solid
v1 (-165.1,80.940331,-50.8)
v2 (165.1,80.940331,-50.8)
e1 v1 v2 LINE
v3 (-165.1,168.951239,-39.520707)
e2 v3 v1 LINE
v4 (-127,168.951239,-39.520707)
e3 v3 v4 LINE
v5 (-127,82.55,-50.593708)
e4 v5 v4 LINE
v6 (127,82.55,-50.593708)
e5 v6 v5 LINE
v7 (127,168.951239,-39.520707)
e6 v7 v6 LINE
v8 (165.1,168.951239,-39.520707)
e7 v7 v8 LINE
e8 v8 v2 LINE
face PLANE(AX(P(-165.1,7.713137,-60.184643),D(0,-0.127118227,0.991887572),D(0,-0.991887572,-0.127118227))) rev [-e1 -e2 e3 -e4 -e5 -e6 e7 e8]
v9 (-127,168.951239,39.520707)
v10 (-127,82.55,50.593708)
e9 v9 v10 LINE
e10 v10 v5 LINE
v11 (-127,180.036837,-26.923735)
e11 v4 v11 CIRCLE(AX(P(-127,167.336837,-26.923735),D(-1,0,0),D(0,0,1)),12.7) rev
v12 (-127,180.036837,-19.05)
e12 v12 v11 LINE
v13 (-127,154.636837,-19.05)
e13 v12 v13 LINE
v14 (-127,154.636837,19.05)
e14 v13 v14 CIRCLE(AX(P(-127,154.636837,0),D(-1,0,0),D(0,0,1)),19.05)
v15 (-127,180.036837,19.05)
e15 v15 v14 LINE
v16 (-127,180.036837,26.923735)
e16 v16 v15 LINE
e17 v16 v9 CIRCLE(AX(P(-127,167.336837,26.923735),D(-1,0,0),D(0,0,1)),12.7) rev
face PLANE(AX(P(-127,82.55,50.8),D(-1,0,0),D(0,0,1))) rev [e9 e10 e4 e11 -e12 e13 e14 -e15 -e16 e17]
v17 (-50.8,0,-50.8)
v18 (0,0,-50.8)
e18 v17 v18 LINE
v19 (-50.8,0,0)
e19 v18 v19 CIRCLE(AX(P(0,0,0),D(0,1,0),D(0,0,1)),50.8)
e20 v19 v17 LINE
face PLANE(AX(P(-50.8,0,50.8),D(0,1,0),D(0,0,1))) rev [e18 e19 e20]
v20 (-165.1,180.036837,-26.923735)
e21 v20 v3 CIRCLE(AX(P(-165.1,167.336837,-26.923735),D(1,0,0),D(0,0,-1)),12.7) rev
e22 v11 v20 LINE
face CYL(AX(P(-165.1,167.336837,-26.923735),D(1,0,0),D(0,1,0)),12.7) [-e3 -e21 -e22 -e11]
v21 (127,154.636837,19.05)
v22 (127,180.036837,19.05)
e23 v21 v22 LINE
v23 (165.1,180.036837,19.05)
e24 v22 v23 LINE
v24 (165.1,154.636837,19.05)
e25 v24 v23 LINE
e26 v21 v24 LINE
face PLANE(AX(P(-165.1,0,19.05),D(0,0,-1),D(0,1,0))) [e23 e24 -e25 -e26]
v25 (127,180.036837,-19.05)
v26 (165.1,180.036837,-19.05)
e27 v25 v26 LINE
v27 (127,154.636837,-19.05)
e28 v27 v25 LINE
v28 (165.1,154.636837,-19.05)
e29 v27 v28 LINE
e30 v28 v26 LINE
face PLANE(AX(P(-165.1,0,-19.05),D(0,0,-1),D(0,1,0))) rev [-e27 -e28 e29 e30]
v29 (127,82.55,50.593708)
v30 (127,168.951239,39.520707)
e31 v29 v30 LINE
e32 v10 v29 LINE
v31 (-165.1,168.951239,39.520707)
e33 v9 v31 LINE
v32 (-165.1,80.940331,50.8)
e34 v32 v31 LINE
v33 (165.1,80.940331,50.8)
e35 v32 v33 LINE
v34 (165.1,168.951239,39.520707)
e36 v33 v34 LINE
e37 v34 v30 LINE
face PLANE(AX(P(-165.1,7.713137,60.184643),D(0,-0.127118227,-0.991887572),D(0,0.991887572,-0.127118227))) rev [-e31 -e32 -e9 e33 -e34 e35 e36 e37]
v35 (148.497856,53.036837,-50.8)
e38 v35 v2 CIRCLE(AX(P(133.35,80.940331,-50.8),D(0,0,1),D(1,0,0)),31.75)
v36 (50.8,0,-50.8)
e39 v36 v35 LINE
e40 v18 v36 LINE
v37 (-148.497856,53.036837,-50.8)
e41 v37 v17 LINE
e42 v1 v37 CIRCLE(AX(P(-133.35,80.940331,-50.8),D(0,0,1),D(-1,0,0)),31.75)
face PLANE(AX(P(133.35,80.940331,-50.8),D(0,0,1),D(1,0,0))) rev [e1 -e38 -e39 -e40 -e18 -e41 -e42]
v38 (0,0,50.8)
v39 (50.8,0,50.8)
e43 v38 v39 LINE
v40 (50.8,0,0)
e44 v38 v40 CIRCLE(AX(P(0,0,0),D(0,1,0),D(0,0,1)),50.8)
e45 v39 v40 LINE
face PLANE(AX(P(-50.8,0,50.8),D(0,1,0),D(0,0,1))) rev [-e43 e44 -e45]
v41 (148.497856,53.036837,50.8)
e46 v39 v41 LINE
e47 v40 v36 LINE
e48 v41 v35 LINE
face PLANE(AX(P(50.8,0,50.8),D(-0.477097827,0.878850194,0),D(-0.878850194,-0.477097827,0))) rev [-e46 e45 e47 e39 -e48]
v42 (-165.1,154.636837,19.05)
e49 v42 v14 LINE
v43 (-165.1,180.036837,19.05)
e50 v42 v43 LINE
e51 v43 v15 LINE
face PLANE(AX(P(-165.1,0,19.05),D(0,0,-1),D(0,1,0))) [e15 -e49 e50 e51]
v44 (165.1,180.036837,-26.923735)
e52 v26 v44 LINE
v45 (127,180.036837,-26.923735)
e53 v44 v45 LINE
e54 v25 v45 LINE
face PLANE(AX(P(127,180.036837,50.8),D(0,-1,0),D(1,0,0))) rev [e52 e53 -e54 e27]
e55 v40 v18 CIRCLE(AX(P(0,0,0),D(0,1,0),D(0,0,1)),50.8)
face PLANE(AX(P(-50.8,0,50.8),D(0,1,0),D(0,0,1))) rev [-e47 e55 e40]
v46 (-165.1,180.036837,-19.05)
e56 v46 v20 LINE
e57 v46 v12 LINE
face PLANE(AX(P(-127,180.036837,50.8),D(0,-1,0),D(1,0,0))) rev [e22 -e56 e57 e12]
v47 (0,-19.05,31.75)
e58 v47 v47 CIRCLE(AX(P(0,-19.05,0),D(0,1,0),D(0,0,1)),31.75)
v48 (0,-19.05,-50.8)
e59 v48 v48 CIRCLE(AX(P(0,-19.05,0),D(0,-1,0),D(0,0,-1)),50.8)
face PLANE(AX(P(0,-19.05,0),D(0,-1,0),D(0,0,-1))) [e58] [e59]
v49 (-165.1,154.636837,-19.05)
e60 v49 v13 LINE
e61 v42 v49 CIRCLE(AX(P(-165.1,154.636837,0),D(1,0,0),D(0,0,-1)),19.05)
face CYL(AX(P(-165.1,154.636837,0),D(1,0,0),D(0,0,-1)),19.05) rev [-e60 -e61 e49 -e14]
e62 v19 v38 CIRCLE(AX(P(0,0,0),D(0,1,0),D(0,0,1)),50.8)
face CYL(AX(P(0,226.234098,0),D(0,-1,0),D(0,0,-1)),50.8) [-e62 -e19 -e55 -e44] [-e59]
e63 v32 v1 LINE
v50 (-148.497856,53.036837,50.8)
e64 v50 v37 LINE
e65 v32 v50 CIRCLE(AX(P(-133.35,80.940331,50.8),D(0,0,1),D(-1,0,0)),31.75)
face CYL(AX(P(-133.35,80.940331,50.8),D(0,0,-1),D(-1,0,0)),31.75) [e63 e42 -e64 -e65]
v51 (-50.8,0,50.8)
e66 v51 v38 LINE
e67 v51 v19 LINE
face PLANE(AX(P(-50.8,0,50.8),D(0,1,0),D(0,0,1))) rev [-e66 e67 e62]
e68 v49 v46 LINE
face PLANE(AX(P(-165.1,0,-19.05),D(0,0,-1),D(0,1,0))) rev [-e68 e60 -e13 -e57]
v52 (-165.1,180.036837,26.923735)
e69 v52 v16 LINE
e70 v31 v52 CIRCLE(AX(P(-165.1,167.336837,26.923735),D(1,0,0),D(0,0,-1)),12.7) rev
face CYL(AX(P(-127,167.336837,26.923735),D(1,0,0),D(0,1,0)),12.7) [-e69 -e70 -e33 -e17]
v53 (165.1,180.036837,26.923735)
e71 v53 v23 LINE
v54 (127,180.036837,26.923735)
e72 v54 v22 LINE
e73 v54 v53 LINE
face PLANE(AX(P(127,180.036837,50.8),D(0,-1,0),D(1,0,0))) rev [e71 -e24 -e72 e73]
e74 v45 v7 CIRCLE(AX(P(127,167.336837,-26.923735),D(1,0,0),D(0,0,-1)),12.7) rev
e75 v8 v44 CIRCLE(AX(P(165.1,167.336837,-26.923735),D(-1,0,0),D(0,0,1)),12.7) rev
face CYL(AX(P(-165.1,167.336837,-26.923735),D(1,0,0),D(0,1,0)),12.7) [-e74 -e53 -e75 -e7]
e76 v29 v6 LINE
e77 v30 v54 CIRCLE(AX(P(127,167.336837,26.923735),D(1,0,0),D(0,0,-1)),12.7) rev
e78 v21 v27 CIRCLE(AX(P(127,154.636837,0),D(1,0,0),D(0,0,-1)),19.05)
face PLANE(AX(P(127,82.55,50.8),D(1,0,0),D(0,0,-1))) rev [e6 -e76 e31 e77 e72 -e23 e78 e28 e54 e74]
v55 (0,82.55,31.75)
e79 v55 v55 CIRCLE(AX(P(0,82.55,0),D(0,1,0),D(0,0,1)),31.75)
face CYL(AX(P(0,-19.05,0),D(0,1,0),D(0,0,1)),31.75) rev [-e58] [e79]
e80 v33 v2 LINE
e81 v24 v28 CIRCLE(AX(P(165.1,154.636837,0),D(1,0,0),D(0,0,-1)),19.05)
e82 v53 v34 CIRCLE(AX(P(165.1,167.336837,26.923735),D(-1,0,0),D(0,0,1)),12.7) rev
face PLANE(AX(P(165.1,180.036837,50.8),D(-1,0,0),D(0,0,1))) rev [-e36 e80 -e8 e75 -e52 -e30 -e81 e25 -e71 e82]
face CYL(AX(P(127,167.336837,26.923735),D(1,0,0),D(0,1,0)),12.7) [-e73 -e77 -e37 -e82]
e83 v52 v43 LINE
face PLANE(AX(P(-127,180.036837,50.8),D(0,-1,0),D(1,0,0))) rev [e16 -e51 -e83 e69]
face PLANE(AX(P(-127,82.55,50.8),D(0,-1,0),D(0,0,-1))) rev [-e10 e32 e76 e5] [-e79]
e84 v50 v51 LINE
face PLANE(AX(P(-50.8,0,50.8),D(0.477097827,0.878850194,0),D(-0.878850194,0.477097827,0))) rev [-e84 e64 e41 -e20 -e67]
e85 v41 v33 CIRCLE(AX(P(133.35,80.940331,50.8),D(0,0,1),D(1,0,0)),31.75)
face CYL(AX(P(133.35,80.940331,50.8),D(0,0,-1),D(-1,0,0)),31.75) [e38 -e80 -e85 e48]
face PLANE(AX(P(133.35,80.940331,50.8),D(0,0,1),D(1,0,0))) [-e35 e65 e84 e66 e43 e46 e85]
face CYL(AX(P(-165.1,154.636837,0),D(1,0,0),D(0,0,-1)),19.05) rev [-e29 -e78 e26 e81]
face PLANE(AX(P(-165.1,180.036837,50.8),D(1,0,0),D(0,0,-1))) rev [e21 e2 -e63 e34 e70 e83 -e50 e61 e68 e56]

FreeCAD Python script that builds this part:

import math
import FreeCAD as App
import Part
import Sketcher
Q = App.Units.Quantity


def edges_at(feature, points):
    """Names of the edges that pass closest to the given points."""
    edges = feature.Shape.Edges
    near = lambda p: min(range(len(edges)), key=lambda i: edges[i].distToShape(Part.Vertex(*p))[0])
    return sorted({f"Edge{near(p) + 1}" for p in points})

doc = App.newDocument("Part")
params = doc.addObject("Spreadsheet::Sheet", "Params")
for row, (alias, value) in enumerate([
    ("sketch1_width", "4 in"),
    ("sketch1_width2", "10 in"),
    ("sketch1_radius", "1.25 in"),
    ("sketch1_width3", "1.5 in"),
    ("pad1_length", "4 in"),
    ("sketch2_diameter", "4 in"),
    ("pad2_length", "0.75 in"),
    ("sketch3_diameter", "2.5 in"),
    ("sketch4_width", "1 in"),
    ("sketch4_radius", "0.75 in"),
    ("sketch4_height", "0.5 in"),
    ("fillet_radius", "0.5 in"),
], start=1):
    params.set(f"A{row}", alias)
    params.set(f"B{row}", "=" + value)
    params.setAlias(f"B{row}", alias)

body = doc.addObject("PartDesign::Body", "Body")

# Sketch on XY plane
sketch1 = body.newObject("Sketcher::SketchObject", "Sketch")
sketch1.AttachmentSupport = (doc.getObject("XY_Plane"), [""])
sketch1.MapMode = "FlatFace"
sketch1.addGeometry(Part.LineSegment(App.Vector(-51, 0, 0), App.Vector(51, 0, 0)), False)
sketch1.addGeometry(Part.LineSegment(App.Vector(51, 0, 0), App.Vector(148, 53, 0)), False)
sketch1.addGeometry(Part.ArcOfCircle(Part.Circle(App.Vector(133, 81, 0), App.Vector(0, 0, 1), 32), math.radians(-62), math.radians(0)), False)
sketch1.addGeometry(Part.LineSegment(App.Vector(165, 81, 0), App.Vector(165, 180, 0)), False)
sketch1.addGeometry(Part.LineSegment(App.Vector(165, 180, 0), App.Vector(127, 180, 0)), False)
sketch1.addGeometry(Part.LineSegment(App.Vector(127, 180, 0), App.Vector(127, 83, 0)), False)
sketch1.addGeometry(Part.LineSegment(App.Vector(127, 83, 0), App.Vector(-127, 83, 0)), False)
sketch1.addGeometry(Part.LineSegment(App.Vector(-127, 83, 0), App.Vector(-127, 180, 0)), False)
sketch1.addGeometry(Part.LineSegment(App.Vector(-127, 180, 0), App.Vector(-165, 180, 0)), False)
sketch1.addGeometry(Part.LineSegment(App.Vector(-165, 180, 0), App.Vector(-165, 81, 0)), False)
sketch1.addGeometry(Part.ArcOfCircle(Part.Circle(App.Vector(-133, 81, 0), App.Vector(0, 0, 1), 32), math.radians(-180), math.radians(-118)), False)
sketch1.addGeometry(Part.LineSegment(App.Vector(-148, 53, 0), App.Vector(-51, 0, 0)), False)
sketch1.addConstraint(Sketcher.Constraint("Coincident", 0, 2, 1, 1))
sketch1.addConstraint(Sketcher.Constraint("Tangent", 1, 2, 2, 1))
sketch1.addConstraint(Sketcher.Constraint("Tangent", 2, 2, 3, 1))
sketch1.addConstraint(Sketcher.Constraint("Coincident", 3, 2, 4, 1))
sketch1.addConstraint(Sketcher.Constraint("Coincident", 4, 2, 5, 1))
sketch1.addConstraint(Sketcher.Constraint("Coincident", 5, 2, 6, 1))
sketch1.addConstraint(Sketcher.Constraint("Coincident", 6, 2, 7, 1))
sketch1.addConstraint(Sketcher.Constraint("Coincident", 7, 2, 8, 1))
sketch1.addConstraint(Sketcher.Constraint("Coincident", 8, 2, 9, 1))
sketch1.addConstraint(Sketcher.Constraint("Tangent", 9, 2, 10, 1))
sketch1.addConstraint(Sketcher.Constraint("Tangent", 10, 2, 11, 1))
sketch1.addConstraint(Sketcher.Constraint("Coincident", 11, 2, 0, 1))
sketch1.addConstraint(Sketcher.Constraint("Horizontal", 0))
sketch1.addConstraint(Sketcher.Constraint("Vertical", 3))
sketch1.addConstraint(Sketcher.Constraint("Horizontal", 4))
sketch1.addConstraint(Sketcher.Constraint("Vertical", 5))
sketch1.addConstraint(Sketcher.Constraint("Horizontal", 6))
sketch1.addConstraint(Sketcher.Constraint("Vertical", 7))
sketch1.addConstraint(Sketcher.Constraint("Horizontal", 8))
sketch1.addConstraint(Sketcher.Constraint("Vertical", 9))
sketch1.addConstraint(Sketcher.Constraint("Equal", 2, 10))
sketch1.addConstraint(Sketcher.Constraint("Symmetric", 0, 2, 11, 2, -1, 1))
sketch1.addConstraint(Sketcher.Constraint("Symmetric", 2, 3, 10, 3, -2))
sketch1.addConstraint(Sketcher.Constraint("Symmetric", 4, 2, 7, 2, -2))
sketch1.addConstraint(Sketcher.Constraint("DistanceX", 0, 1, 0, 2, Q("4 in")))
sketch1.addConstraint(Sketcher.Constraint("DistanceX", 6, 2, 6, 1, Q("10 in")))
sketch1.addConstraint(Sketcher.Constraint("Radius", 2, Q("1.25 in")))
sketch1.addConstraint(Sketcher.Constraint("DistanceX", 4, 2, 4, 1, Q("1.5 in")))
sketch1.addConstraint(Sketcher.Constraint("DistanceY", 1, 2, 3, 2, Q("5 in")))
sketch1.addConstraint(Sketcher.Constraint("DistanceY", -1, 1, 5, 2, Q("3.25 in")))
sketch1.addConstraint(Sketcher.Constraint("Distance", 1, 111.16554))
sketch1.setExpression("Constraints[24]", "Params.sketch1_width")
sketch1.setExpression("Constraints[25]", "Params.sketch1_width2")
sketch1.setExpression("Constraints[26]", "Params.sketch1_radius")
sketch1.setExpression("Constraints[27]", "Params.sketch1_width3")
pad1 = body.newObject("PartDesign::Pad", "Pad")
pad1.Profile = sketch1
pad1.setExpression("Length", "Params.pad1_length")
pad1.Midplane = True

# Sketch on XZ plane
sketch2 = body.newObject("Sketcher::SketchObject", "Sketch001")
sketch2.AttachmentSupport = (doc.getObject("XZ_Plane"), [""])
sketch2.MapMode = "FlatFace"
sketch2.addGeometry(Part.Circle(App.Vector(0, 0, 0), App.Vector(0, 0, 1), 51), False)
sketch2.addConstraint(Sketcher.Constraint("Coincident", 0, 3, -1, 1))
sketch2.addConstraint(Sketcher.Constraint("Diameter", 0, Q("4 in")))
sketch2.setExpression("Constraints[1]", "Params.sketch2_diameter")
pad2 = body.newObject("PartDesign::Pad", "Pad001")
pad2.Profile = sketch2
pad2.setExpression("Length", "Params.pad2_length")

# Sketch on XZ plane
sketch3 = body.newObject("Sketcher::SketchObject", "Sketch002")
sketch3.AttachmentSupport = (doc.getObject("XZ_Plane"), [""])
sketch3.MapMode = "FlatFace"
sketch3.AttachmentOffset = App.Placement(App.Vector(0, 0, -3.25 * 25.4), App.Rotation())
sketch3.addGeometry(Part.Circle(App.Vector(0, 0, 0), App.Vector(0, 0, 1), 32), False)
sketch3.addConstraint(Sketcher.Constraint("Coincident", 0, 3, -1, 1))
sketch3.addConstraint(Sketcher.Constraint("Diameter", 0, Q("2.5 in")))
sketch3.setExpression("Constraints[1]", "Params.sketch3_diameter")
pocket1 = body.newObject("PartDesign::Pocket", "Pocket")
pocket1.Profile = sketch3
pocket1.Type = "ThroughAll"
pocket1.Reversed = True

# Sketch on YZ plane
sketch4 = body.newObject("Sketcher::SketchObject", "Sketch003")
sketch4.AttachmentSupport = (doc.getObject("YZ_Plane"), [""])
sketch4.MapMode = "FlatFace"
sketch4.AttachmentOffset = App.Placement(App.Vector(0, 0, 6.5 * 25.4), App.Rotation())
sketch4.addGeometry(Part.LineSegment(App.Vector(180, 51, 0), App.Vector(81, 51, 0)), False)
sketch4.addGeometry(Part.LineSegment(App.Vector(81, 51, 0), App.Vector(180, 38, 0)), False)
sketch4.addGeometry(Part.LineSegment(App.Vector(180, 38, 0), App.Vector(180, 51, 0)), False)
sketch4.addGeometry(Part.LineSegment(App.Vector(180, -19, 0), App.Vector(180, 19, 0)), False)
sketch4.addGeometry(Part.LineSegment(App.Vector(180, 19, 0), App.Vector(155, 19, 0)), False)
sketch4.addGeometry(Part.ArcOfCircle(Part.Circle(App.Vector(155, 0, 0), App.Vector(0, 0, 1), 19), math.radians(90), math.radians(270)), False)
sketch4.addGeometry(Part.LineSegment(App.Vector(155, -19, 0), App.Vector(180, -19, 0)), False)
sketch4.addGeometry(Part.LineSegment(App.Vector(180, -38, 0), App.Vector(81, -51, 0)), False)
sketch4.addGeometry(Part.LineSegment(App.Vector(81, -51, 0), App.Vector(180, -51, 0)), False)
sketch4.addGeometry(Part.LineSegment(App.Vector(180, -51, 0), App.Vector(180, -38, 0)), False)
sketch4.addConstraint(Sketcher.Constraint("Coincident", 0, 2, 1, 1))
sketch4.addConstraint(Sketcher.Constraint("Coincident", 1, 2, 2, 1))
sketch4.addConstraint(Sketcher.Constraint("Coincident", 2, 2, 0, 1))
sketch4.addConstraint(Sketcher.Constraint("Coincident", 3, 2, 4, 1))
sketch4.addConstraint(Sketcher.Constraint("Tangent", 4, 2, 5, 1))
sketch4.addConstraint(Sketcher.Constraint("Tangent", 5, 2, 6, 1))
sketch4.addConstraint(Sketcher.Constraint("Coincident", 6, 2, 3, 1))
sketch4.addConstraint(Sketcher.Constraint("Coincident", 7, 2, 8, 1))
sketch4.addConstraint(Sketcher.Constraint("Coincident", 8, 2, 9, 1))
sketch4.addConstraint(Sketcher.Constraint("Coincident", 9, 2, 7, 1))
sketch4.addConstraint(Sketcher.Constraint("Horizontal", 0))
sketch4.addConstraint(Sketcher.Constraint("Vertical", 2))
sketch4.addConstraint(Sketcher.Constraint("Vertical", 3))
sketch4.addConstraint(Sketcher.Constraint("Horizontal", 4))
sketch4.addConstraint(Sketcher.Constraint("Horizontal", 6))
sketch4.addConstraint(Sketcher.Constraint("Horizontal", 8))
sketch4.addConstraint(Sketcher.Constraint("Vertical", 9))
sketch4.addConstraint(Sketcher.Constraint("Symmetric", 0, 2, 7, 2, -1))
sketch4.addConstraint(Sketcher.Constraint("Symmetric", 1, 2, 9, 2, -1))
sketch4.addConstraint(Sketcher.Constraint("PointOnObject", 5, 3, -1))
sketch4.addConstraint(Sketcher.Constraint("Vertical", 2, 2, 3, 2))
sketch4.addConstraint(Sketcher.Constraint("DistanceX", 4, 2, 4, 1, Q("1 in")))
sketch4.addConstraint(Sketcher.Constraint("Radius", 5, Q("0.75 in")))
sketch4.addConstraint(Sketcher.Constraint("DistanceY", 2, 1, 2, 2, Q("0.5 in")))
sketch4.addConstraint(Sketcher.Constraint("DistanceY", -1, 1, 0, 2, Q("2 in")))
sketch4.addConstraint(Sketcher.Constraint("DistanceX", 0, 2, 0, 1, 99.096506))
sketch4.addConstraint(Sketcher.Constraint("DistanceX", -1, 1, 0, 2, 80.940331))
sketch4.setExpression("Constraints[21]", "Params.sketch4_width")
sketch4.setExpression("Constraints[22]", "Params.sketch4_radius")
sketch4.setExpression("Constraints[23]", "Params.sketch4_height")
pocket2 = body.newObject("PartDesign::Pocket", "Pocket001")
pocket2.Profile = sketch4
pocket2.Type = "ThroughAll"
doc.recompute()

fillet = body.newObject("PartDesign::Fillet", "Fillet")
fillet.Base = (pocket2, edges_at(pocket2, [
    (146.05, 180.037, -38.1),
    (-146.05, 180.037, -38.1),
    (146.05, 180.037, 38.1),
    (-146.05, 180.037, 38.1),
]))
fillet.setExpression("Radius", "Params.fillet_radius")

doc.recompute()
